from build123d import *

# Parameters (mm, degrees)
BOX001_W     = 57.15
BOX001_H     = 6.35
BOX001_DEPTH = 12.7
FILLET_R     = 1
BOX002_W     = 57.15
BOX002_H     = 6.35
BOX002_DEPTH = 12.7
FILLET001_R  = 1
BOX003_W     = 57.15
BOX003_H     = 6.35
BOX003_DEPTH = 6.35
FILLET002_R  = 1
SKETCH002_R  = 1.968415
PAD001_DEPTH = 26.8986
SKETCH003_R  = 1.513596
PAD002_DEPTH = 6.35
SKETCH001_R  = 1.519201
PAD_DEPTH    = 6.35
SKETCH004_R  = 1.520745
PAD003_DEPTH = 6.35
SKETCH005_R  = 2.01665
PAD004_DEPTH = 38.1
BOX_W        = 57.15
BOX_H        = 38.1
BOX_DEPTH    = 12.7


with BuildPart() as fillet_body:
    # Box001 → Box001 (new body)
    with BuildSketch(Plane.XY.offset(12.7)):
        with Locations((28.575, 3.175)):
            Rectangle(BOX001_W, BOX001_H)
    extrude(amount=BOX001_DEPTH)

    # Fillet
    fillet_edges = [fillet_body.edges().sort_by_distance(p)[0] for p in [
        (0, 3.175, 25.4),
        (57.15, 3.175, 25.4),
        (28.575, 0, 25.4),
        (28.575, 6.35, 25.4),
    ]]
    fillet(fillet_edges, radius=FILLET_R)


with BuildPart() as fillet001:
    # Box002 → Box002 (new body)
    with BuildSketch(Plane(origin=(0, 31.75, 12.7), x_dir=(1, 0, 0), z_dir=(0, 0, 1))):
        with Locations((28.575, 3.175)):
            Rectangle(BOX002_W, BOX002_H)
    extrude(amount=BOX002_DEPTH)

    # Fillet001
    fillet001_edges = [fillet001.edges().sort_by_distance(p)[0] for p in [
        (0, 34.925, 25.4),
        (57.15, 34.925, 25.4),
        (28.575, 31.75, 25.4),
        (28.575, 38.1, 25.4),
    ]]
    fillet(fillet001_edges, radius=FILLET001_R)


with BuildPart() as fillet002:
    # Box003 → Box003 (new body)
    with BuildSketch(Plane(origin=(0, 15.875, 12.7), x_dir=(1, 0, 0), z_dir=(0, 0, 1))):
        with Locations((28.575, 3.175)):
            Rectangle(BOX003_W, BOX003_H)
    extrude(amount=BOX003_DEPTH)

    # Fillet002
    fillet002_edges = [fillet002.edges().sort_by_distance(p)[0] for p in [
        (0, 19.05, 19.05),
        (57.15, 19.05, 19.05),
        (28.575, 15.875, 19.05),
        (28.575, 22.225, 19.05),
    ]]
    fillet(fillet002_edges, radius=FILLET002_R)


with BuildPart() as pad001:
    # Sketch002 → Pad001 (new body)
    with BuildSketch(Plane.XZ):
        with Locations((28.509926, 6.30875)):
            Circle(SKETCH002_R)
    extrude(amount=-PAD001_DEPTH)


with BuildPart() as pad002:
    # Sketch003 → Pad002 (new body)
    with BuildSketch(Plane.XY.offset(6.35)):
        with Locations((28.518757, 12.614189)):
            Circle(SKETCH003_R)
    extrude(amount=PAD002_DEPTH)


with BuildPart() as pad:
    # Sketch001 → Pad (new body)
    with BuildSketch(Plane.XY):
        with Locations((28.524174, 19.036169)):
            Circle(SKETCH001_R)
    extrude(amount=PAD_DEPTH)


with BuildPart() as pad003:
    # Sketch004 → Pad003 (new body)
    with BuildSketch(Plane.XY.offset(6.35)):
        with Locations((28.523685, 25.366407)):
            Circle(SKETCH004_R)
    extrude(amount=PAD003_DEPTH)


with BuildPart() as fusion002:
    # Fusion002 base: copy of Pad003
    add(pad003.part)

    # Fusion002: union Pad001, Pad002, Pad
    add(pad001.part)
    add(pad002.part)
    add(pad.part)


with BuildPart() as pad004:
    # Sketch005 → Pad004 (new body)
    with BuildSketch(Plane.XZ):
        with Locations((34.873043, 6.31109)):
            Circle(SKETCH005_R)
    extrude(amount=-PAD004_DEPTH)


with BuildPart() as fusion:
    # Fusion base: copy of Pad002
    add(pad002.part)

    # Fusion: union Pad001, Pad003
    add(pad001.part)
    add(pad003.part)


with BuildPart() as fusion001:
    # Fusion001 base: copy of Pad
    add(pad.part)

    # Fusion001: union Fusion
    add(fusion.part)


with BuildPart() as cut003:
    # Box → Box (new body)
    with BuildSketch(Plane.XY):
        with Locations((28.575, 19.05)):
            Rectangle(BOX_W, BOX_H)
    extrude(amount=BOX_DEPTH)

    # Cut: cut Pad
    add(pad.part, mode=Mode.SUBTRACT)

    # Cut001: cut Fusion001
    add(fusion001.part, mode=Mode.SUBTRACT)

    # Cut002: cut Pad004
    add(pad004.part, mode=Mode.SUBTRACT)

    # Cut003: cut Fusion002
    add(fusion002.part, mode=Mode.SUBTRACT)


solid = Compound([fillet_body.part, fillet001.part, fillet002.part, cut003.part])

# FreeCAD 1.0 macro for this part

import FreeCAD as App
import Part
import Sketcher
Q = App.Units.Quantity


def edges_at(feature, points):
    """Names of the edges that pass closest to the given points."""
    edges = feature.Shape.Edges
    near = lambda p: min(range(len(edges)), key=lambda i: edges[i].distToShape(Part.Vertex(*p))[0])
    return sorted({f"Edge{near(p) + 1}" for p in points})

doc = App.newDocument("Part")
body = doc.addObject("PartDesign::Body", "Body")

# Sketch on XY plane
sketch1 = body.newObject("Sketcher::SketchObject", "Sketch")
sketch1.AttachmentSupport = (doc.getObject("XY_Plane"), [""])
sketch1.MapMode = "FlatFace"
sketch1.AttachmentOffset = App.Placement(App.Vector(0, 0, 0.5 * 25.4), App.Rotation())
sketch1.addGeometry(Part.LineSegment(App.Vector(0, 6, 0), App.Vector(0, 0, 0)), False)
sketch1.addGeometry(Part.LineSegment(App.Vector(0, 0, 0), App.Vector(57, 0, 0)), False)
sketch1.addGeometry(Part.LineSegment(App.Vector(57, 0, 0), App.Vector(57, 6, 0)), False)
sketch1.addGeometry(Part.LineSegment(App.Vector(57, 6, 0), App.Vector(0, 6, 0)), False)
sketch1.addConstraint(Sketcher.Constraint("Coincident", 0, 2, 1, 1))
sketch1.addConstraint(Sketcher.Constraint("Coincident", 1, 2, 2, 1))
sketch1.addConstraint(Sketcher.Constraint("Coincident", 2, 2, 3, 1))
sketch1.addConstraint(Sketcher.Constraint("Coincident", 3, 2, 0, 1))
sketch1.addConstraint(Sketcher.Constraint("Vertical", 0))
sketch1.addConstraint(Sketcher.Constraint("Horizontal", 1))
sketch1.addConstraint(Sketcher.Constraint("Vertical", 2))
sketch1.addConstraint(Sketcher.Constraint("Horizontal", 3))
sketch1.addConstraint(Sketcher.Constraint("Coincident", 0, 2, -1, 1))
sketch1.addConstraint(Sketcher.Constraint("DistanceX", 1, 1, 1, 2, Q("2.25 in")))
sketch1.addConstraint(Sketcher.Constraint("DistanceY", 0, 2, 0, 1, Q("0.25 in")))
pad1 = body.newObject("PartDesign::Pad", "Pad")
pad1.Profile = sketch1
pad1.Length = Q("0.5 in")
doc.recompute()

fillet = body.newObject("PartDesign::Fillet", "Fillet")
fillet.Base = (pad1, edges_at(pad1, [
    (0, 3.175, 25.4),
    (57.15, 3.175, 25.4),
    (28.575, 0, 25.4),
    (28.575, 6.35, 25.4),
]))
fillet.Radius = 1
body2 = doc.addObject("PartDesign::Body", "Body001")

# Sketch on XY plane
sketch2 = body2.newObject("Sketcher::SketchObject", "Sketch001")
sketch2.AttachmentSupport = (doc.getObject("XY_Plane001"), [""])
sketch2.MapMode = "FlatFace"
sketch2.AttachmentOffset = App.Placement(App.Vector(0, 0, 0.5 * 25.4), App.Rotation())
sketch2.addGeometry(Part.LineSegment(App.Vector(0, 38, 0), App.Vector(0, 32, 0)), False)
sketch2.addGeometry(Part.LineSegment(App.Vector(0, 32, 0), App.Vector(57, 32, 0)), False)
sketch2.addGeometry(Part.LineSegment(App.Vector(57, 32, 0), App.Vector(57, 38, 0)), False)
sketch2.addGeometry(Part.LineSegment(App.Vector(57, 38, 0), App.Vector(0, 38, 0)), False)
sketch2.addConstraint(Sketcher.Constraint("Coincident", 0, 2, 1, 1))
sketch2.addConstraint(Sketcher.Constraint("Coincident", 1, 2, 2, 1))
sketch2.addConstraint(Sketcher.Constraint("Coincident", 2, 2, 3, 1))
sketch2.addConstraint(Sketcher.Constraint("Coincident", 3, 2, 0, 1))
sketch2.addConstraint(Sketcher.Constraint("Vertical", 0))
sketch2.addConstraint(Sketcher.Constraint("Horizontal", 1))
sketch2.addConstraint(Sketcher.Constraint("Vertical", 2))
sketch2.addConstraint(Sketcher.Constraint("Horizontal", 3))
sketch2.addConstraint(Sketcher.Constraint("PointOnObject", 0, 2, -2))
sketch2.addConstraint(Sketcher.Constraint("DistanceX", 1, 1, 1, 2, Q("2.25 in")))
sketch2.addConstraint(Sketcher.Constraint("DistanceY", 0, 2, 0, 1, Q("0.25 in")))
sketch2.addConstraint(Sketcher.Constraint("DistanceY", -1, 1, 2, 2, Q("1.5 in")))
pad2 = body2.newObject("PartDesign::Pad", "Pad001")
pad2.Profile = sketch2
pad2.Length = Q("0.5 in")
doc.recompute()

fillet2 = body2.newObject("PartDesign::Fillet", "Fillet001")
fillet2.Base = (pad2, edges_at(pad2, [
    (0, 34.925, 25.4),
    (57.15, 34.925, 25.4),
    (28.575, 31.75, 25.4),
    (28.575, 38.1, 25.4),
]))
fillet2.Radius = 1
body3 = doc.addObject("PartDesign::Body", "Body002")

# Sketch on XY plane
sketch3 = body3.newObject("Sketcher::SketchObject", "Sketch002")
sketch3.AttachmentSupport = (doc.getObject("XY_Plane002"), [""])
sketch3.MapMode = "FlatFace"
sketch3.AttachmentOffset = App.Placement(App.Vector(0, 0, 0.5 * 25.4), App.Rotation())
sketch3.addGeometry(Part.LineSegment(App.Vector(0, 22, 0), App.Vector(0, 16, 0)), False)
sketch3.addGeometry(Part.LineSegment(App.Vector(0, 16, 0), App.Vector(57, 16, 0)), False)
sketch3.addGeometry(Part.LineSegment(App.Vector(57, 16, 0), App.Vector(57, 22, 0)), False)
sketch3.addGeometry(Part.LineSegment(App.Vector(57, 22, 0), App.Vector(0, 22, 0)), False)
sketch3.addConstraint(Sketcher.Constraint("Coincident", 0, 2, 1, 1))
sketch3.addConstraint(Sketcher.Constraint("Coincident", 1, 2, 2, 1))
sketch3.addConstraint(Sketcher.Constraint("Coincident", 2, 2, 3, 1))
sketch3.addConstraint(Sketcher.Constraint("Coincident", 3, 2, 0, 1))
sketch3.addConstraint(Sketcher.Constraint("Vertical", 0))
sketch3.addConstraint(Sketcher.Constraint("Horizontal", 1))
sketch3.addConstraint(Sketcher.Constraint("Vertical", 2))
sketch3.addConstraint(Sketcher.Constraint("Horizontal", 3))
sketch3.addConstraint(Sketcher.Constraint("PointOnObject", 0, 2, -2))
sketch3.addConstraint(Sketcher.Constraint("DistanceX", 1, 1, 1, 2, Q("2.25 in")))
sketch3.addConstraint(Sketcher.Constraint("DistanceY", 0, 2, 0, 1, Q("0.25 in")))
sketch3.addConstraint(Sketcher.Constraint("DistanceY", -1, 1, 0, 2, Q("0.625 in")))
pad3 = body3.newObject("PartDesign::Pad", "Pad002")
pad3.Profile = sketch3
pad3.Length = Q("0.25 in")
doc.recompute()

fillet3 = body3.newObject("PartDesign::Fillet", "Fillet002")
fillet3.Base = (pad3, edges_at(pad3, [
    (0, 19.05, 19.05),
    (57.15, 19.05, 19.05),
    (28.575, 15.875, 19.05),
    (28.575, 22.225, 19.05),
]))
fillet3.Radius = 1
body4 = doc.addObject("PartDesign::Body", "Body003")

# Sketch on XZ plane
sketch4 = body4.newObject("Sketcher::SketchObject", "Sketch003")
sketch4.AttachmentSupport = (doc.getObject("XZ_Plane003"), [""])
sketch4.MapMode = "FlatFace"
sketch4.addGeometry(Part.Circle(App.Vector(28.5, 6.3, 0), App.Vector(0, 0, 1), 2), False)
sketch4.addConstraint(Sketcher.Constraint("Diameter", 0, Q("3.93683 mm")))
sketch4.addConstraint(Sketcher.Constraint("DistanceY", -1, 1, 0, 3, Q("6.30875 mm")))
sketch4.addConstraint(Sketcher.Constraint("DistanceX", -1, 1, 0, 3, Q("28.509926 mm")))
pad4 = body4.newObject("PartDesign::Pad", "Pad003")
pad4.Profile = sketch4
pad4.Length = Q("1.059 in")
pad4.Reversed = True
body5 = doc.addObject("PartDesign::Body", "Body004")

# Sketch on XY plane
sketch5 = body5.newObject("Sketcher::SketchObject", "Sketch004")
sketch5.AttachmentSupport = (doc.getObject("XY_Plane004"), [""])
sketch5.MapMode = "FlatFace"
sketch5.AttachmentOffset = App.Placement(App.Vector(0, 0, 0.25 * 25.4), App.Rotation())
sketch5.addGeometry(Part.Circle(App.Vector(28.5, 12.6, 0), App.Vector(0, 0, 1), 1.5), False)
sketch5.addConstraint(Sketcher.Constraint("Diameter", 0, Q("3.027192 mm")))
sketch5.addConstraint(Sketcher.Constraint("DistanceY", -1, 1, 0, 3, Q("12.614189 mm")))
sketch5.addConstraint(Sketcher.Constraint("DistanceX", -1, 1, 0, 3, Q("28.518757 mm")))
pad5 = body5.newObject("PartDesign::Pad", "Pad004")
pad5.Profile = sketch5
pad5.Length = Q("0.25 in")
body6 = doc.addObject("PartDesign::Body", "Body005")

# Sketch on XY plane
sketch6 = body6.newObject("Sketcher::SketchObject", "Sketch005")
sketch6.AttachmentSupport = (doc.getObject("XY_Plane005"), [""])
sketch6.MapMode = "FlatFace"
sketch6.addGeometry(Part.Circle(App.Vector(28.5, 19, 0), App.Vector(0, 0, 1), 1.5), False)
sketch6.addConstraint(Sketcher.Constraint("Diameter", 0, Q("3.038402 mm")))
sketch6.addConstraint(Sketcher.Constraint("DistanceY", -1, 1, 0, 3, Q("19.036169 mm")))
sketch6.addConstraint(Sketcher.Constraint("DistanceX", -1, 1, 0, 3, Q("28.524174 mm")))
pad6 = body6.newObject("PartDesign::Pad", "Pad005")
pad6.Profile = sketch6
pad6.Length = Q("0.25 in")
body7 = doc.addObject("PartDesign::Body", "Body006")

# Sketch on XY plane
sketch7 = body7.newObject("Sketcher::SketchObject", "Sketch006")
sketch7.AttachmentSupport = (doc.getObject("XY_Plane006"), [""])
sketch7.MapMode = "FlatFace"
sketch7.AttachmentOffset = App.Placement(App.Vector(0, 0, 0.25 * 25.4), App.Rotation())
sketch7.addGeometry(Part.Circle(App.Vector(28.5, 25.4, 0), App.Vector(0, 0, 1), 1.5), False)
sketch7.addConstraint(Sketcher.Constraint("Diameter", 0, Q("3.04149 mm")))
sketch7.addConstraint(Sketcher.Constraint("DistanceX", -1, 1, 0, 3, Q("28.523685 mm")))
sketch7.addConstraint(Sketcher.Constraint("DistanceY", -1, 1, 0, 3, Q("25.366407 mm")))
pad7 = body7.newObject("PartDesign::Pad", "Pad006")
pad7.Profile = sketch7
pad7.Length = Q("0.25 in")
body8 = doc.addObject("PartDesign::Body", "Body007")
doc.recompute()

body8.BaseFeature = body7
doc.recompute()

body9 = doc.addObject("PartDesign::Body", "Body008")
body9.BaseFeature = body4
boolean = body8.newObject("PartDesign::Boolean", "Boolean")
boolean.Type = "Fuse"
boolean.addObjects([body9])
doc.recompute()

body10 = doc.addObject("PartDesign::Body", "Body009")
body10.BaseFeature = body5
boolean2 = body8.newObject("PartDesign::Boolean", "Boolean001")
boolean2.Type = "Fuse"
boolean2.addObjects([body10])
doc.recompute()

body11 = doc.addObject("PartDesign::Body", "Body010")
body11.BaseFeature = body6
boolean3 = body8.newObject("PartDesign::Boolean", "Boolean002")
boolean3.Type = "Fuse"
boolean3.addObjects([body11])
doc.recompute()
body12 = doc.addObject("PartDesign::Body", "Body011")

# Sketch on XZ plane
sketch8 = body12.newObject("Sketcher::SketchObject", "Sketch007")
sketch8.AttachmentSupport = (doc.getObject("XZ_Plane011"), [""])
sketch8.MapMode = "FlatFace"
sketch8.addGeometry(Part.Circle(App.Vector(34.9, 6.3, 0), App.Vector(0, 0, 1), 2), False)
sketch8.addConstraint(Sketcher.Constraint("Diameter", 0, Q("4.0333 mm")))
sketch8.addConstraint(Sketcher.Constraint("DistanceY", -1, 1, 0, 3, Q("6.31109 mm")))
sketch8.addConstraint(Sketcher.Constraint("DistanceX", -1, 1, 0, 3, Q("34.873043 mm")))
pad8 = body12.newObject("PartDesign::Pad", "Pad007")
pad8.Profile = sketch8
pad8.Length = Q("1.5 in")
pad8.Reversed = True
doc.recompute()

boolean4 = body5.newObject("PartDesign::Boolean", "Boolean003")
boolean4.Type = "Fuse"
boolean4.addObjects([body4])
doc.recompute()

boolean5 = body5.newObject("PartDesign::Boolean", "Boolean004")
boolean5.Type = "Fuse"
boolean5.addObjects([body7])
body13 = doc.addObject("PartDesign::Body", "Body012")
doc.recompute()

body13.BaseFeature = body6
doc.recompute()

boolean6 = body13.newObject("PartDesign::Boolean", "Boolean005")
boolean6.Type = "Fuse"
boolean6.addObjects([body5])
body14 = doc.addObject("PartDesign::Body", "Body013")

# Sketch on XY plane
sketch9 = body14.newObject("Sketcher::SketchObject", "Sketch008")
sketch9.AttachmentSupport = (doc.getObject("XY_Plane013"), [""])
sketch9.MapMode = "FlatFace"
sketch9.addGeometry(Part.LineSegment(App.Vector(0, 38, 0), App.Vector(0, 0, 0)), False)
sketch9.addGeometry(Part.LineSegment(App.Vector(0, 0, 0), App.Vector(57, 0, 0)), False)
sketch9.addGeometry(Part.LineSegment(App.Vector(57, 0, 0), App.Vector(57, 38, 0)), False)
sketch9.addGeometry(Part.LineSegment(App.Vector(57, 38, 0), App.Vector(0, 38, 0)), False)
sketch9.addConstraint(Sketcher.Constraint("Coincident", 0, 2, 1, 1))
sketch9.addConstraint(Sketcher.Constraint("Coincident", 1, 2, 2, 1))
sketch9.addConstraint(Sketcher.Constraint("Coincident", 2, 2, 3, 1))
sketch9.addConstraint(Sketcher.Constraint("Coincident", 3, 2, 0, 1))
sketch9.addConstraint(Sketcher.Constraint("Vertical", 0))
sketch9.addConstraint(Sketcher.Constraint("Horizontal", 1))
sketch9.addConstraint(Sketcher.Constraint("Vertical", 2))
sketch9.addConstraint(Sketcher.Constraint("Horizontal", 3))
sketch9.addConstraint(Sketcher.Constraint("Coincident", 0, 2, -1, 1))
sketch9.addConstraint(Sketcher.Constraint("DistanceY", 0, 2, 0, 1, Q("1.5 in")))
sketch9.addConstraint(Sketcher.Constraint("DistanceX", 1, 1, 1, 2, Q("2.25 in")))
pad9 = body14.newObject("PartDesign::Pad", "Pad008")
pad9.Profile = sketch9
pad9.Length = Q("0.5 in")
doc.recompute()

boolean7 = body14.newObject("PartDesign::Boolean", "Boolean006")
boolean7.Type = "Cut"
boolean7.addObjects([body6])
doc.recompute()

boolean8 = body14.newObject("PartDesign::Boolean", "Boolean007")
boolean8.Type = "Cut"
boolean8.addObjects([body13])
doc.recompute()

boolean9 = body14.newObject("PartDesign::Boolean", "Boolean008")
boolean9.Type = "Cut"
boolean9.addObjects([body12])
doc.recompute()

boolean10 = body14.newObject("PartDesign::Boolean", "Boolean009")
boolean10.Type = "Cut"
boolean10.addObjects([body8])

doc.recompute()
